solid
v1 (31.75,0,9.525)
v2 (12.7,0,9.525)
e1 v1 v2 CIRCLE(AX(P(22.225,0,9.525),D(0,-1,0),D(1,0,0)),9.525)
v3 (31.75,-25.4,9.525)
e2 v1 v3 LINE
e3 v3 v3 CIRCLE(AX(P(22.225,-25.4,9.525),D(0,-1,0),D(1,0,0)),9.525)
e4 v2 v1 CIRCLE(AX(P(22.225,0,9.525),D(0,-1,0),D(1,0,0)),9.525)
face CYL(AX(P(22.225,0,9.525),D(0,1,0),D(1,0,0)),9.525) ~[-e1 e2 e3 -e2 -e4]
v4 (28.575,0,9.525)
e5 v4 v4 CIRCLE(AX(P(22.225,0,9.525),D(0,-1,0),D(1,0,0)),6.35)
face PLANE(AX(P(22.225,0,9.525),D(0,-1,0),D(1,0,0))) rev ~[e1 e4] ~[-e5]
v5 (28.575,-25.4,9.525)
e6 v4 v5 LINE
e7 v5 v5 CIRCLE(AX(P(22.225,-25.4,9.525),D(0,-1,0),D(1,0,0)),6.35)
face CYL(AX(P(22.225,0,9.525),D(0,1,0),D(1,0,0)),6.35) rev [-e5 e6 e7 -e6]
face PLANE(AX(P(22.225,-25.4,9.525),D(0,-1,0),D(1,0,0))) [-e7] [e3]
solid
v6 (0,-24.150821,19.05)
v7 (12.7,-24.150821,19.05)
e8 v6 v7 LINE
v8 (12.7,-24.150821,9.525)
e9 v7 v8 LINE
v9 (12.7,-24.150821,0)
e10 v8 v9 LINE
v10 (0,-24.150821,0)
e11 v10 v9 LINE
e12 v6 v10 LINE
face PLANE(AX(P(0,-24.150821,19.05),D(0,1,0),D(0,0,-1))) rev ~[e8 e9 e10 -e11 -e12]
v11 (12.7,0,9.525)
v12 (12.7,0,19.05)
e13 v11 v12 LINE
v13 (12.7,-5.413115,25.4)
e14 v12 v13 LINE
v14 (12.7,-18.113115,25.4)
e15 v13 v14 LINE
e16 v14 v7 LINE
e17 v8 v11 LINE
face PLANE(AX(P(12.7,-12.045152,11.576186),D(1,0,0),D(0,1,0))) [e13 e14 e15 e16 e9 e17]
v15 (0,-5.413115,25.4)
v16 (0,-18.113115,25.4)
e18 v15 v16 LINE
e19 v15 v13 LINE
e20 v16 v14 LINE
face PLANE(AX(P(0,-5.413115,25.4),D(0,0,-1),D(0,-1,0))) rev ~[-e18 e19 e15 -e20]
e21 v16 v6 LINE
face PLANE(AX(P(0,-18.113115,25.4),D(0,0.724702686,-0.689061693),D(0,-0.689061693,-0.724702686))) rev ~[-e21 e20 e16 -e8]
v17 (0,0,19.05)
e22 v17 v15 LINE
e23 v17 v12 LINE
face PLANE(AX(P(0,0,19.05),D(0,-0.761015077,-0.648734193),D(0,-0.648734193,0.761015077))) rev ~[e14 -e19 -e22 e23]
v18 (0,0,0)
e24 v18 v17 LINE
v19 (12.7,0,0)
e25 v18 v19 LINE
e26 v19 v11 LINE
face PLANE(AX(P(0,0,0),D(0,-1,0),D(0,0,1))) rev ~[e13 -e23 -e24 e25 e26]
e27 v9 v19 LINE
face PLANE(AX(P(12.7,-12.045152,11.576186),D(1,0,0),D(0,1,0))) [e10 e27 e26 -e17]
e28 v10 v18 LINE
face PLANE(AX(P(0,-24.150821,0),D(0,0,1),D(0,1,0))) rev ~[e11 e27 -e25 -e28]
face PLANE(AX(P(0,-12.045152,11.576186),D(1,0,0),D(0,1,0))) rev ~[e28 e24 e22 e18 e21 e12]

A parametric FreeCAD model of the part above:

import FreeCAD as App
import Part
import Sketcher
Q = App.Units.Quantity

doc = App.newDocument("Part")
body = doc.addObject("PartDesign::Body", "Body")
body.AllowCompound = True

# Sketch on YZ plane
sketch1 = body.newObject("Sketcher::SketchObject", "Sketch")
sketch1.AttachmentSupport = (doc.getObject("YZ_Plane"), [""])
sketch1.MapMode = "FlatFace"
sketch1.addGeometry([
    Part.LineSegment(App.Vector(-24.150821, 0, 0), App.Vector(0, 0, 0)),  # 0
    Part.LineSegment(App.Vector(0, 0, 0), App.Vector(0, 19.05, 0)),  # 1
    Part.LineSegment(App.Vector(0, 19.05, 0), App.Vector(-5.413115, 25.4, 0)),  # 2
    Part.LineSegment(App.Vector(-5.413115, 25.4, 0), App.Vector(-18.113115, 25.4, 0)),  # 3
    Part.LineSegment(App.Vector(-18.113115, 25.4, 0), App.Vector(-24.150821, 19.05, 0)),  # 4
    Part.LineSegment(App.Vector(-24.150821, 19.05, 0), App.Vector(-24.150821, 0, 0)),  # 5
], False)
sketch1.addConstraint([
    Sketcher.Constraint("Coincident", 0, 2, 1, 1),
    Sketcher.Constraint("Coincident", 1, 2, 2, 1),
    Sketcher.Constraint("Coincident", 2, 2, 3, 1),
    Sketcher.Constraint("Coincident", 3, 2, 4, 1),
    Sketcher.Constraint("Coincident", 4, 2, 5, 1),
    Sketcher.Constraint("Coincident", 5, 2, 0, 1),
    Sketcher.Constraint("Horizontal", 0),
    Sketcher.Constraint("Vertical", 1),
    Sketcher.Constraint("Horizontal", 3),
    Sketcher.Constraint("Vertical", 5),
    Sketcher.Constraint("Coincident", 0, 2, -1, 1),
    Sketcher.Constraint("Horizontal", 1, 2, 4, 2),
    Sketcher.Constraint("DistanceX", 3, 2, 3, 1, Q("0.5 in")),
    Sketcher.Constraint("DistanceY", -1, 1, 2, 2, Q("1 in")),
    Sketcher.Constraint("DistanceY", 1, 1, 1, 2, Q("0.75 in")),
    Sketcher.Constraint("DistanceX", 0, 1, 0, 2, 24.150821),
    Sketcher.Constraint("Distance", 2, 8.344119),
])
pad1 = body.newObject("PartDesign::Pad", "Pad")
pad1.Profile = sketch1
pad1.Length = Q("0.5 in")

# Sketch on XZ plane
sketch2 = body.newObject("Sketcher::SketchObject", "Sketch001")
sketch2.AttachmentSupport = (doc.getObject("XZ_Plane"), [""])
sketch2.MapMode = "FlatFace"
sketch2.addGeometry([
    Part.Circle(App.Vector(22.225, 9.525, 0), App.Vector(0, 0, 1), 9.525),
    Part.Circle(App.Vector(22.225, 9.525, 0), App.Vector(0, 0, 1), 6.35),
], False)
sketch2.addConstraint([
    Sketcher.Constraint("Coincident", 1, 3, 0, 3),
    Sketcher.Constraint("Diameter", 1, Q("0.5 in")),
    Sketcher.Constraint("Diameter", 0, Q("0.75 in")),
    Sketcher.Constraint("DistanceX", -1, 1, 0, 3, Q("0.875 in")),
    Sketcher.Constraint("DistanceY", -1, 1, 0, 3, Q("0.375 in")),
])
pad2 = body.newObject("PartDesign::Pad", "Pad001")
pad2.Profile = sketch2
pad2.Length = Q("1 in")

doc.recompute()
